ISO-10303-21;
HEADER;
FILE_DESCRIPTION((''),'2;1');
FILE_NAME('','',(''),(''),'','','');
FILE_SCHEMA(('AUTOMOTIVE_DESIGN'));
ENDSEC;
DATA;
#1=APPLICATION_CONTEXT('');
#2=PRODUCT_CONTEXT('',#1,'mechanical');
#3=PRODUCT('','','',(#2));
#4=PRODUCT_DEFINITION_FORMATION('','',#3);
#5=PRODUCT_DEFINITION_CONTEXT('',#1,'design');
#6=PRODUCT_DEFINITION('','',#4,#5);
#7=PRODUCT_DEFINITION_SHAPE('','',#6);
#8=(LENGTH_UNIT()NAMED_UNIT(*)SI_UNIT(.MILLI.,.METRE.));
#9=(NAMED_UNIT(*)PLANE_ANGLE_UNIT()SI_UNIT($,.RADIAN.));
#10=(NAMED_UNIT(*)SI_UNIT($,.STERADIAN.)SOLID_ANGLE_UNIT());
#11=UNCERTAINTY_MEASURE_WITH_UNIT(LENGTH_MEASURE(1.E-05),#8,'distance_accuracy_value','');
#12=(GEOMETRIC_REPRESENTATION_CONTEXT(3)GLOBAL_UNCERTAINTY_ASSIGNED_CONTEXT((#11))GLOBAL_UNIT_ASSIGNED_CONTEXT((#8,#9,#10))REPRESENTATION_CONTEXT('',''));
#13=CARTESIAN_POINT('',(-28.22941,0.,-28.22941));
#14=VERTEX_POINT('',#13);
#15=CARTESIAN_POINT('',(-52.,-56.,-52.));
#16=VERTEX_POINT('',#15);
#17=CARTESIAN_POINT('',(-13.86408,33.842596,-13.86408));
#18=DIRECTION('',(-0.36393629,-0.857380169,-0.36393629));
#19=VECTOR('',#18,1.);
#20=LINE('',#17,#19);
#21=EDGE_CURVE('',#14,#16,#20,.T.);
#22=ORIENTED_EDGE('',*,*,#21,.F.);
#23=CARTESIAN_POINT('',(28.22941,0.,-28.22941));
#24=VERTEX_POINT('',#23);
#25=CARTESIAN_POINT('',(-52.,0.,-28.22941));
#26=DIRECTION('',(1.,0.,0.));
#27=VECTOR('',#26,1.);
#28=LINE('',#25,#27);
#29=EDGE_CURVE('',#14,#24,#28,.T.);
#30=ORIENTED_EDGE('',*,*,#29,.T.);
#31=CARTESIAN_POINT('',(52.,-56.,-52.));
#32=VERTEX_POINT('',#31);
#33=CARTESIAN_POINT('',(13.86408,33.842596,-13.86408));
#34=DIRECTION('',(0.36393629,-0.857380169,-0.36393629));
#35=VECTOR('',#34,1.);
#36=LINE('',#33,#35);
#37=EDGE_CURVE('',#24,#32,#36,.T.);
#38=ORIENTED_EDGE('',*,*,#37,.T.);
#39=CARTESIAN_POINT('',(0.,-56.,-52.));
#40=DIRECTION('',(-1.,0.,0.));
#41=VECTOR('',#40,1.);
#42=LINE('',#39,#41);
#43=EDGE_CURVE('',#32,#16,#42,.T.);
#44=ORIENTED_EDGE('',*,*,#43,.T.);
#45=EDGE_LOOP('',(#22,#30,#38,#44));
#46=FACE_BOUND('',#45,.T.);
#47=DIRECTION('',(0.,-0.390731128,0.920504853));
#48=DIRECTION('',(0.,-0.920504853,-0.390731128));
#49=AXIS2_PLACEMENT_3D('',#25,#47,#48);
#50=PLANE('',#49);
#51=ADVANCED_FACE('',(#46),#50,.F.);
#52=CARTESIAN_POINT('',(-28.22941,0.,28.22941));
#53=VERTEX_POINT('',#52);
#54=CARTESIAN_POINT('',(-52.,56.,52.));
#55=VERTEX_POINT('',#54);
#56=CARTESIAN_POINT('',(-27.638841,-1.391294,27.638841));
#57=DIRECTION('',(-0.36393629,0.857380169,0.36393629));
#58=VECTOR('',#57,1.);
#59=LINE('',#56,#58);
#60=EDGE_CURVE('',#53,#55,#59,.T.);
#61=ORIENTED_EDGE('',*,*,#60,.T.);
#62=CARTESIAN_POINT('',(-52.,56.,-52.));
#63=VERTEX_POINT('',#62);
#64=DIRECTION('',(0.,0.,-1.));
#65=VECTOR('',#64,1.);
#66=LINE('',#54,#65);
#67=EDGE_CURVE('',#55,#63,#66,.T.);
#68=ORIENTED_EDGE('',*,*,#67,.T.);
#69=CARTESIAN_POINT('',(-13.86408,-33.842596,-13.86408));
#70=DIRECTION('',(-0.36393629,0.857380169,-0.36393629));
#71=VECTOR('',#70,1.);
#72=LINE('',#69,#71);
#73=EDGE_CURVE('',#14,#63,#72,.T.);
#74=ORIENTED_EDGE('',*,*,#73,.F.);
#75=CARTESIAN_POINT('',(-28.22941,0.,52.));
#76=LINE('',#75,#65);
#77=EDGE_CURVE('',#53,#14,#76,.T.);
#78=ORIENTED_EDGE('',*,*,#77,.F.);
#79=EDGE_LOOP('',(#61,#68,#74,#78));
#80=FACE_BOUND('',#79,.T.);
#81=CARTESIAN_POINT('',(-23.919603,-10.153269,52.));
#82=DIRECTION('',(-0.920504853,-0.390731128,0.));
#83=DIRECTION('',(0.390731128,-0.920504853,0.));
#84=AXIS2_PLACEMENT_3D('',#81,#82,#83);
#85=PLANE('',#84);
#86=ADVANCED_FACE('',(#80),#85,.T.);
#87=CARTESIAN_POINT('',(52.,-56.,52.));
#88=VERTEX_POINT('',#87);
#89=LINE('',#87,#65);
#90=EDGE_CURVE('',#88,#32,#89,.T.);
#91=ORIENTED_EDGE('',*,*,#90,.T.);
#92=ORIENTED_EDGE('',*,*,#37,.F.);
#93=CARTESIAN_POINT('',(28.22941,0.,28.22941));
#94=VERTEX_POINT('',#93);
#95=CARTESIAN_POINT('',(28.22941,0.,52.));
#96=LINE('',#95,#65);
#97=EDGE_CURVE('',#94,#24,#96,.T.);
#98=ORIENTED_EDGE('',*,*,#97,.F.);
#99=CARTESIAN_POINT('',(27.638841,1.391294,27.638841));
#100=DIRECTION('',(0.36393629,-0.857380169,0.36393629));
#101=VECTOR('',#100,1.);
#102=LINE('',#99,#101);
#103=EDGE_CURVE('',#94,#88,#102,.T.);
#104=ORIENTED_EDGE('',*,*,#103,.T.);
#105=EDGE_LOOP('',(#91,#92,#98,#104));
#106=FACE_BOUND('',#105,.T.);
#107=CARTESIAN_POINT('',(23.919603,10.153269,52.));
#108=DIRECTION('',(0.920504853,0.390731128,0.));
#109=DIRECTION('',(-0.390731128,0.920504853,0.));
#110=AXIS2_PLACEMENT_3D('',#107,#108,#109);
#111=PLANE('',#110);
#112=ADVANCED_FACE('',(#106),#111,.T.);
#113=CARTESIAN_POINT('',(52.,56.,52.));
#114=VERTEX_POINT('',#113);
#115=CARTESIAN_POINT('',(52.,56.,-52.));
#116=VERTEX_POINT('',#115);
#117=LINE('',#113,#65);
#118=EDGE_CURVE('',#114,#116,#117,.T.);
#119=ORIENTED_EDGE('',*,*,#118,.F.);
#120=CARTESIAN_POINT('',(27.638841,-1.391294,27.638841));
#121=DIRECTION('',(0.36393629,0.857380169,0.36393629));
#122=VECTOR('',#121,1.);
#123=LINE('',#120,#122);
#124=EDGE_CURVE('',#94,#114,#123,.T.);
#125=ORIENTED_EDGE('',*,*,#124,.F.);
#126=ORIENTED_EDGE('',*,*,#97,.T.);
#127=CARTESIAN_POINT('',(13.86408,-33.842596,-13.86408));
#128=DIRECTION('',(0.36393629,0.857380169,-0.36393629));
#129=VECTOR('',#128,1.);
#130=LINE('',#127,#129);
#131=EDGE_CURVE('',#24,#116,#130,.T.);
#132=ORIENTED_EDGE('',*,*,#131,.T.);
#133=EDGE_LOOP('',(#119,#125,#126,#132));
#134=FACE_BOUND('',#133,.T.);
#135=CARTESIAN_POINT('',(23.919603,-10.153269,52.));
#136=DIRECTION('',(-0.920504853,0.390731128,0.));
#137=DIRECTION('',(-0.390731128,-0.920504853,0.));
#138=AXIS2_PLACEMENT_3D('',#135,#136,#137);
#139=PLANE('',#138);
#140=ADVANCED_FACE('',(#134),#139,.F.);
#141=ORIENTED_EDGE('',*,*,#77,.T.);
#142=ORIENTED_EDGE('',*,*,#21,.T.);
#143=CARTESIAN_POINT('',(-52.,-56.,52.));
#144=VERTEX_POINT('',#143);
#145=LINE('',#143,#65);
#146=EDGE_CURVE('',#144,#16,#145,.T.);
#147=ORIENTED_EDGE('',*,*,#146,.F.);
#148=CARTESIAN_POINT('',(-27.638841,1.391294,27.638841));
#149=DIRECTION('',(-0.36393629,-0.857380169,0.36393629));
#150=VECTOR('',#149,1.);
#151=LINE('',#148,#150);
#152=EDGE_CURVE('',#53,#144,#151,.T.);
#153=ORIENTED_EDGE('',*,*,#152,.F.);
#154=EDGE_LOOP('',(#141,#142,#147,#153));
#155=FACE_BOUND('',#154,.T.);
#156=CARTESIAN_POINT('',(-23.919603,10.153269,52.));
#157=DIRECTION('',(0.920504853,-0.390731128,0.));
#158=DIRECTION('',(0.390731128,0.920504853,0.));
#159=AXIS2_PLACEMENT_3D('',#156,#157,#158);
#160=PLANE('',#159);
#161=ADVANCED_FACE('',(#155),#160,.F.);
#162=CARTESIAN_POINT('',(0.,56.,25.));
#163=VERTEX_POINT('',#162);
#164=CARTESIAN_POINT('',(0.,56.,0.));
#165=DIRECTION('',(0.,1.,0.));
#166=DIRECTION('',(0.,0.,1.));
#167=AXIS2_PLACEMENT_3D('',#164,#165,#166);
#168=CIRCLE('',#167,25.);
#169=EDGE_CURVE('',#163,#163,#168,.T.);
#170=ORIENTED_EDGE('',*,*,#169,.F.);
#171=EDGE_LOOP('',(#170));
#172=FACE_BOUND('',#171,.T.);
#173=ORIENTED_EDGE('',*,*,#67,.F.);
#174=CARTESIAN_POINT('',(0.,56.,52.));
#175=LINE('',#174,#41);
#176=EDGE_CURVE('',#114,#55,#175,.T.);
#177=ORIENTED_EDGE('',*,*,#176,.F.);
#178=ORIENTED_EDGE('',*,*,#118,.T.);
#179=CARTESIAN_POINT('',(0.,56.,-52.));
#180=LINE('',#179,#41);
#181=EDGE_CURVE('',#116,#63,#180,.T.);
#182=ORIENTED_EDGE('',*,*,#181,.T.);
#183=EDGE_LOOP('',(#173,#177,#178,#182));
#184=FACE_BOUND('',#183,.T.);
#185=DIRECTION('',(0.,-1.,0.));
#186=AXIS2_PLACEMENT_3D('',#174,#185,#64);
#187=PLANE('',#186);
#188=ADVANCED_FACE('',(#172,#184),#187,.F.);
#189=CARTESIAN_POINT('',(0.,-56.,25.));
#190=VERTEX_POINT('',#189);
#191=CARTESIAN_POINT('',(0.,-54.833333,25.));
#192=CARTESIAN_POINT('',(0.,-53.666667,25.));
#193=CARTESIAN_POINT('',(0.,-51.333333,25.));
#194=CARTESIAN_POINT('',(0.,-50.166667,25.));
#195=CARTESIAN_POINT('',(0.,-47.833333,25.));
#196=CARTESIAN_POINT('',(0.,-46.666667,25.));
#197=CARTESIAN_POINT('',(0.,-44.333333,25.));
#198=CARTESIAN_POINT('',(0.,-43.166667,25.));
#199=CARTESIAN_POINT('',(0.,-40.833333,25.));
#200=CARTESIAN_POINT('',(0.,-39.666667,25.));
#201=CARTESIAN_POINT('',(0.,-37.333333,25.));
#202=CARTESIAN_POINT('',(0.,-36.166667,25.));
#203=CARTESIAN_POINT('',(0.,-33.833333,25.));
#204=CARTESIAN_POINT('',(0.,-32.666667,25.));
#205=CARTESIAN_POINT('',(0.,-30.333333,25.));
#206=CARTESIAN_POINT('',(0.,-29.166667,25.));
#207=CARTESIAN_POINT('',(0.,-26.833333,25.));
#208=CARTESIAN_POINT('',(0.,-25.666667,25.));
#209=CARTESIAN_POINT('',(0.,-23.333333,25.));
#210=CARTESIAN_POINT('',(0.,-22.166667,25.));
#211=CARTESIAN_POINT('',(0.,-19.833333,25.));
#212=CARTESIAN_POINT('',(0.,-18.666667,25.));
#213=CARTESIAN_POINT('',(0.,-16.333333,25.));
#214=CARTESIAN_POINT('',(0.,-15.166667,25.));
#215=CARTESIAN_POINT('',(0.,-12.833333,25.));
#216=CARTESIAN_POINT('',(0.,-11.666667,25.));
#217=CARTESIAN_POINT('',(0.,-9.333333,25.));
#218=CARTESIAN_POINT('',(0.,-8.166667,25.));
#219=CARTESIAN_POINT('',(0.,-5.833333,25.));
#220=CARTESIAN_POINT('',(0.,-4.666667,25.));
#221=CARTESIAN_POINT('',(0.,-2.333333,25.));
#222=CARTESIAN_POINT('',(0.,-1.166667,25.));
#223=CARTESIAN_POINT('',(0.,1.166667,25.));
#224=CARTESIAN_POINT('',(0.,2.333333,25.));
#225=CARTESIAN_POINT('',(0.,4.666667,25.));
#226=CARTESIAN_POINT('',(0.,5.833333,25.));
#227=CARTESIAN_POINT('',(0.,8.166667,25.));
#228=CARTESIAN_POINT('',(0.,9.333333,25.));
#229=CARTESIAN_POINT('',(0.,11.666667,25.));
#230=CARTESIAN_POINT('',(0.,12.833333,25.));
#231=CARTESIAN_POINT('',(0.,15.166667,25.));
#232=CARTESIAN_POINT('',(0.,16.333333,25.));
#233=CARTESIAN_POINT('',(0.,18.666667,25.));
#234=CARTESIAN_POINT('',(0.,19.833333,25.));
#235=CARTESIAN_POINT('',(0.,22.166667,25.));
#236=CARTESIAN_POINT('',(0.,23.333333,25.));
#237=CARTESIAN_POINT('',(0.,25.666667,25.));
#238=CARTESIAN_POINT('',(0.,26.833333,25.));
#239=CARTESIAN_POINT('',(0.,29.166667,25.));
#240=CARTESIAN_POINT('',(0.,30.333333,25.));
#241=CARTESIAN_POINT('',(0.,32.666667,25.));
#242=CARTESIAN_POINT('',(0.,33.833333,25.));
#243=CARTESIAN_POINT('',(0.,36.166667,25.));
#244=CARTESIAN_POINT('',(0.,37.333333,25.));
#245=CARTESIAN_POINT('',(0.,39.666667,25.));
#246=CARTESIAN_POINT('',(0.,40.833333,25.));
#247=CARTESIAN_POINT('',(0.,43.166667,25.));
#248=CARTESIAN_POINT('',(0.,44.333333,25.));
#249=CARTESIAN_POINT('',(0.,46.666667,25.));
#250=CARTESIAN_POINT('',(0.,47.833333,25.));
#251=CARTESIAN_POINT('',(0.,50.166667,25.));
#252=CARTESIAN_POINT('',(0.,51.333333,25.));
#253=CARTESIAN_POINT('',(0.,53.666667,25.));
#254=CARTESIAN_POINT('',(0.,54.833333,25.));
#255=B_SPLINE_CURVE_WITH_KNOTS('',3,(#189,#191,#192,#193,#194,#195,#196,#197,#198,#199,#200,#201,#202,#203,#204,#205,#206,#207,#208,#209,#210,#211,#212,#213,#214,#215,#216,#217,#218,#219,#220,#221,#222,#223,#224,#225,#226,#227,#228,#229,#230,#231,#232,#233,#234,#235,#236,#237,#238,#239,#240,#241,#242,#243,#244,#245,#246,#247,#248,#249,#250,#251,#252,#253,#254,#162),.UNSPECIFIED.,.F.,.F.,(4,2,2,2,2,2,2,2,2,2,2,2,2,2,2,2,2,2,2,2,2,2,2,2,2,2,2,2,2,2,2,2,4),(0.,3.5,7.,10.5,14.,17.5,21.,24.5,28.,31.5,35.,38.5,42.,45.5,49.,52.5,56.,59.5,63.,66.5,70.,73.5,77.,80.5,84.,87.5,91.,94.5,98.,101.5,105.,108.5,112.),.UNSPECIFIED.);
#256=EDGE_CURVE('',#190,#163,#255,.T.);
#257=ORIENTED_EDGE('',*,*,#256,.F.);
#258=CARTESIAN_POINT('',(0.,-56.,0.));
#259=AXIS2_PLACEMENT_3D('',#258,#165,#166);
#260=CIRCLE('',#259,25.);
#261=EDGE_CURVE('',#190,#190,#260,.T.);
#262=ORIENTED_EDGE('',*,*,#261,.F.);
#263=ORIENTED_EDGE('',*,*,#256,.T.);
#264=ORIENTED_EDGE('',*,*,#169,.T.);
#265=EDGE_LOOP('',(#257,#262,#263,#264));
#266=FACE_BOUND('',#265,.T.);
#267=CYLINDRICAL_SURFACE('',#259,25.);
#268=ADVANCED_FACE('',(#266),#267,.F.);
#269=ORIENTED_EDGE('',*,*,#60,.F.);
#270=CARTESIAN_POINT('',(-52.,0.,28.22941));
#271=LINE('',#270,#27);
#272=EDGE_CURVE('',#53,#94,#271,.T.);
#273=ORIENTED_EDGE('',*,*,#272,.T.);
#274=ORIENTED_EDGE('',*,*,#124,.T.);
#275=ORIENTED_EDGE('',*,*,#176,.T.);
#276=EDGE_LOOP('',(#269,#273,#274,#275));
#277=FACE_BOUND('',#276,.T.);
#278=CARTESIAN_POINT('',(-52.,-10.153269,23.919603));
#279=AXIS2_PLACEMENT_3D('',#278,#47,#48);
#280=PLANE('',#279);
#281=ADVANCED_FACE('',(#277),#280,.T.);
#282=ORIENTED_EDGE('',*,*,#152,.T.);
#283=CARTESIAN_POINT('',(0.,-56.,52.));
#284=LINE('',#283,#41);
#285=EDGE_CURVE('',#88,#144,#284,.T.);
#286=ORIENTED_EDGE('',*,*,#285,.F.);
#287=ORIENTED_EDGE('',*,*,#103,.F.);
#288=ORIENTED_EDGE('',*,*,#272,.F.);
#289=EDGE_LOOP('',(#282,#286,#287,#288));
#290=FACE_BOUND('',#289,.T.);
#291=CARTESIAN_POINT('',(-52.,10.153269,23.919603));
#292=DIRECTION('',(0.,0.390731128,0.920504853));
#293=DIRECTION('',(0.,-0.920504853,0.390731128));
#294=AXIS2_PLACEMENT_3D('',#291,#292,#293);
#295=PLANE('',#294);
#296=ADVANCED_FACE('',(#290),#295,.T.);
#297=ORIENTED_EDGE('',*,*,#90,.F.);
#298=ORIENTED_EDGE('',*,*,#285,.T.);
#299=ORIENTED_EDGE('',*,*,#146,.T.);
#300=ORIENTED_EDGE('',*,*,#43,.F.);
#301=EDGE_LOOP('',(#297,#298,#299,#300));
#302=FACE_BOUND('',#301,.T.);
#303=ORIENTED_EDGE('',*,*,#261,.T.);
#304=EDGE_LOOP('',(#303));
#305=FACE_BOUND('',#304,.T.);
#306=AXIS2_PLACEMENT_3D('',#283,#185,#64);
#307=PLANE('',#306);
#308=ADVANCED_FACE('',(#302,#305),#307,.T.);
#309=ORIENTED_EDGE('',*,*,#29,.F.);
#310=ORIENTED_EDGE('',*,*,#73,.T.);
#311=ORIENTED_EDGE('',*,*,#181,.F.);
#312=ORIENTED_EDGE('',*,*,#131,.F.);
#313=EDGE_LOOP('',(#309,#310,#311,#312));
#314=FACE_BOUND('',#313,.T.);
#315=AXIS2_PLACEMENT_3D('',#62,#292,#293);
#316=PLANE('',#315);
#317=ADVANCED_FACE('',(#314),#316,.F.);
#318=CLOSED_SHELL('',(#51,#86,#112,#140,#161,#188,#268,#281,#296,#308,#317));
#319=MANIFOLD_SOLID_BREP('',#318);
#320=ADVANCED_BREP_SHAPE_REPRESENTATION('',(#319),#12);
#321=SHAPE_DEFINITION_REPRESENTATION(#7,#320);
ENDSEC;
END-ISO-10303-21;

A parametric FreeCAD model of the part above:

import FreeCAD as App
import Part
import Sketcher
Q = App.Units.Quantity


def add_polygon(sketch, points):
    """Adds a closed chain of lines whose ends are joined by coincident constraints."""
    first, n = sketch.GeometryCount, len(points)
    for a, b in zip(points, points[1:] + points[:1]):
        sketch.addGeometry(Part.LineSegment(App.Vector(*a, 0), App.Vector(*b, 0)), False)
    for i in range(n):
        sketch.addConstraint(Sketcher.Constraint("Coincident", first + i, 2, first + (i + 1) % n, 1))

doc = App.newDocument("Part")
params = doc.addObject("Spreadsheet::Sheet", "Params")
for row, (alias, value) in enumerate([
    ("sketch1_width", "104 mm"),
    ("pad1_length", "104 mm"),
    ("sketch2_diameter", "50 mm"),
    ("sketch3_width", "112 mm"),
], start=1):
    params.set(f"A{row}", alias)
    params.set(f"B{row}", "=" + value)
    params.setAlias(f"B{row}", alias)

body = doc.addObject("PartDesign::Body", "Body")

# Sketch on XY plane
sketch1 = body.newObject("Sketcher::SketchObject", "Sketch")
sketch1.AttachmentSupport = (doc.getObject("XY_Plane"), [""])
sketch1.MapMode = "FlatFace"
add_polygon(sketch1, [(52, -56), (28, 0), (52, 56), (-52, 56), (-28, 0), (-52, -56)])  # lines 0-5
sketch1.addConstraint([
    Sketcher.Constraint("Horizontal", 2),
    Sketcher.Constraint("Horizontal", 5),
    Sketcher.Constraint("Symmetric", 0, 2, 3, 2, -1, 1),
    Sketcher.Constraint("Symmetric", 1, 2, 4, 2, -1, 1),
    Sketcher.Constraint("PointOnObject", 0, 2, -1),
    Sketcher.Constraint("Parallel", 0, 3),
    Sketcher.Constraint("Vertical", 2, 2, 4, 2),
    Sketcher.Constraint("DistanceX", 2, 2, 2, 1, 104.0),
    Sketcher.Constraint("Angle", 0, Q("113 deg")),
    Sketcher.Constraint("DistanceY", -1, 1, 1, 2, 56.0),
])
sketch1.setExpression("Constraints[13]", "Params.sketch1_width")
pad1 = body.newObject("PartDesign::Pad", "Pad")
pad1.Profile = sketch1
pad1.setExpression("Length", "Params.pad1_length")
pad1.Midplane = True

# Sketch on XZ plane
sketch2 = body.newObject("Sketcher::SketchObject", "Sketch001")
sketch2.AttachmentSupport = (doc.getObject("XZ_Plane"), [""])
sketch2.MapMode = "FlatFace"
sketch2.AttachmentOffset = App.Placement(App.Vector(0, 0, -56), App.Rotation())
sketch2.addGeometry(Part.Circle(App.Vector(0, 0, 0), App.Vector(0, 0, 1), 25), False)
sketch2.addConstraint([
    Sketcher.Constraint("Coincident", 0, 3, -1, 1),
    Sketcher.Constraint("Diameter", 0, 50.0),
])
sketch2.setExpression("Constraints[1]", "Params.sketch2_diameter")
pocket1 = body.newObject("PartDesign::Pocket", "Pocket")
pocket1.Profile = sketch2
pocket1.Type = "ThroughAll"
pocket1.Reversed = True

# Sketch on YZ plane
sketch3 = body.newObject("Sketcher::SketchObject", "Sketch002")
sketch3.AttachmentSupport = (doc.getObject("YZ_Plane"), [""])
sketch3.MapMode = "FlatFace"
add_polygon(sketch3, [(0, 28), (56, 52), (-56, 52)])  # lines 0-2
add_polygon(sketch3, [(56, -52), (0, -28), (-56, -52)])  # lines 3-5
sketch3.addConstraint([
    Sketcher.Constraint("Horizontal", 1),
    Sketcher.Constraint("Horizontal", 5),
    Sketcher.Constraint("Symmetric", 2, 2, 3, 2, -1, 1),
    Sketcher.Constraint("Symmetric", 0, 2, 4, 2, -1, 1),
    Sketcher.Constraint("PointOnObject", 2, 2, -2),
    Sketcher.Constraint("Parallel", 2, 3),
    Sketcher.Constraint("Vertical", 1, 2, 4, 2),
    Sketcher.Constraint("DistanceX", 1, 2, 1, 1, 112.0),
    Sketcher.Constraint("Angle", 0, Q("23 deg")),
    Sketcher.Constraint("DistanceY", -1, 1, 0, 2, 52.0),
])
sketch3.setExpression("Constraints[13]", "Params.sketch3_width")
pocket2 = body.newObject("PartDesign::Pocket", "Pocket001")
pocket2.Profile = sketch3
pocket2.Type = "ThroughAll"
pocket2.Midplane = True

doc.recompute()
